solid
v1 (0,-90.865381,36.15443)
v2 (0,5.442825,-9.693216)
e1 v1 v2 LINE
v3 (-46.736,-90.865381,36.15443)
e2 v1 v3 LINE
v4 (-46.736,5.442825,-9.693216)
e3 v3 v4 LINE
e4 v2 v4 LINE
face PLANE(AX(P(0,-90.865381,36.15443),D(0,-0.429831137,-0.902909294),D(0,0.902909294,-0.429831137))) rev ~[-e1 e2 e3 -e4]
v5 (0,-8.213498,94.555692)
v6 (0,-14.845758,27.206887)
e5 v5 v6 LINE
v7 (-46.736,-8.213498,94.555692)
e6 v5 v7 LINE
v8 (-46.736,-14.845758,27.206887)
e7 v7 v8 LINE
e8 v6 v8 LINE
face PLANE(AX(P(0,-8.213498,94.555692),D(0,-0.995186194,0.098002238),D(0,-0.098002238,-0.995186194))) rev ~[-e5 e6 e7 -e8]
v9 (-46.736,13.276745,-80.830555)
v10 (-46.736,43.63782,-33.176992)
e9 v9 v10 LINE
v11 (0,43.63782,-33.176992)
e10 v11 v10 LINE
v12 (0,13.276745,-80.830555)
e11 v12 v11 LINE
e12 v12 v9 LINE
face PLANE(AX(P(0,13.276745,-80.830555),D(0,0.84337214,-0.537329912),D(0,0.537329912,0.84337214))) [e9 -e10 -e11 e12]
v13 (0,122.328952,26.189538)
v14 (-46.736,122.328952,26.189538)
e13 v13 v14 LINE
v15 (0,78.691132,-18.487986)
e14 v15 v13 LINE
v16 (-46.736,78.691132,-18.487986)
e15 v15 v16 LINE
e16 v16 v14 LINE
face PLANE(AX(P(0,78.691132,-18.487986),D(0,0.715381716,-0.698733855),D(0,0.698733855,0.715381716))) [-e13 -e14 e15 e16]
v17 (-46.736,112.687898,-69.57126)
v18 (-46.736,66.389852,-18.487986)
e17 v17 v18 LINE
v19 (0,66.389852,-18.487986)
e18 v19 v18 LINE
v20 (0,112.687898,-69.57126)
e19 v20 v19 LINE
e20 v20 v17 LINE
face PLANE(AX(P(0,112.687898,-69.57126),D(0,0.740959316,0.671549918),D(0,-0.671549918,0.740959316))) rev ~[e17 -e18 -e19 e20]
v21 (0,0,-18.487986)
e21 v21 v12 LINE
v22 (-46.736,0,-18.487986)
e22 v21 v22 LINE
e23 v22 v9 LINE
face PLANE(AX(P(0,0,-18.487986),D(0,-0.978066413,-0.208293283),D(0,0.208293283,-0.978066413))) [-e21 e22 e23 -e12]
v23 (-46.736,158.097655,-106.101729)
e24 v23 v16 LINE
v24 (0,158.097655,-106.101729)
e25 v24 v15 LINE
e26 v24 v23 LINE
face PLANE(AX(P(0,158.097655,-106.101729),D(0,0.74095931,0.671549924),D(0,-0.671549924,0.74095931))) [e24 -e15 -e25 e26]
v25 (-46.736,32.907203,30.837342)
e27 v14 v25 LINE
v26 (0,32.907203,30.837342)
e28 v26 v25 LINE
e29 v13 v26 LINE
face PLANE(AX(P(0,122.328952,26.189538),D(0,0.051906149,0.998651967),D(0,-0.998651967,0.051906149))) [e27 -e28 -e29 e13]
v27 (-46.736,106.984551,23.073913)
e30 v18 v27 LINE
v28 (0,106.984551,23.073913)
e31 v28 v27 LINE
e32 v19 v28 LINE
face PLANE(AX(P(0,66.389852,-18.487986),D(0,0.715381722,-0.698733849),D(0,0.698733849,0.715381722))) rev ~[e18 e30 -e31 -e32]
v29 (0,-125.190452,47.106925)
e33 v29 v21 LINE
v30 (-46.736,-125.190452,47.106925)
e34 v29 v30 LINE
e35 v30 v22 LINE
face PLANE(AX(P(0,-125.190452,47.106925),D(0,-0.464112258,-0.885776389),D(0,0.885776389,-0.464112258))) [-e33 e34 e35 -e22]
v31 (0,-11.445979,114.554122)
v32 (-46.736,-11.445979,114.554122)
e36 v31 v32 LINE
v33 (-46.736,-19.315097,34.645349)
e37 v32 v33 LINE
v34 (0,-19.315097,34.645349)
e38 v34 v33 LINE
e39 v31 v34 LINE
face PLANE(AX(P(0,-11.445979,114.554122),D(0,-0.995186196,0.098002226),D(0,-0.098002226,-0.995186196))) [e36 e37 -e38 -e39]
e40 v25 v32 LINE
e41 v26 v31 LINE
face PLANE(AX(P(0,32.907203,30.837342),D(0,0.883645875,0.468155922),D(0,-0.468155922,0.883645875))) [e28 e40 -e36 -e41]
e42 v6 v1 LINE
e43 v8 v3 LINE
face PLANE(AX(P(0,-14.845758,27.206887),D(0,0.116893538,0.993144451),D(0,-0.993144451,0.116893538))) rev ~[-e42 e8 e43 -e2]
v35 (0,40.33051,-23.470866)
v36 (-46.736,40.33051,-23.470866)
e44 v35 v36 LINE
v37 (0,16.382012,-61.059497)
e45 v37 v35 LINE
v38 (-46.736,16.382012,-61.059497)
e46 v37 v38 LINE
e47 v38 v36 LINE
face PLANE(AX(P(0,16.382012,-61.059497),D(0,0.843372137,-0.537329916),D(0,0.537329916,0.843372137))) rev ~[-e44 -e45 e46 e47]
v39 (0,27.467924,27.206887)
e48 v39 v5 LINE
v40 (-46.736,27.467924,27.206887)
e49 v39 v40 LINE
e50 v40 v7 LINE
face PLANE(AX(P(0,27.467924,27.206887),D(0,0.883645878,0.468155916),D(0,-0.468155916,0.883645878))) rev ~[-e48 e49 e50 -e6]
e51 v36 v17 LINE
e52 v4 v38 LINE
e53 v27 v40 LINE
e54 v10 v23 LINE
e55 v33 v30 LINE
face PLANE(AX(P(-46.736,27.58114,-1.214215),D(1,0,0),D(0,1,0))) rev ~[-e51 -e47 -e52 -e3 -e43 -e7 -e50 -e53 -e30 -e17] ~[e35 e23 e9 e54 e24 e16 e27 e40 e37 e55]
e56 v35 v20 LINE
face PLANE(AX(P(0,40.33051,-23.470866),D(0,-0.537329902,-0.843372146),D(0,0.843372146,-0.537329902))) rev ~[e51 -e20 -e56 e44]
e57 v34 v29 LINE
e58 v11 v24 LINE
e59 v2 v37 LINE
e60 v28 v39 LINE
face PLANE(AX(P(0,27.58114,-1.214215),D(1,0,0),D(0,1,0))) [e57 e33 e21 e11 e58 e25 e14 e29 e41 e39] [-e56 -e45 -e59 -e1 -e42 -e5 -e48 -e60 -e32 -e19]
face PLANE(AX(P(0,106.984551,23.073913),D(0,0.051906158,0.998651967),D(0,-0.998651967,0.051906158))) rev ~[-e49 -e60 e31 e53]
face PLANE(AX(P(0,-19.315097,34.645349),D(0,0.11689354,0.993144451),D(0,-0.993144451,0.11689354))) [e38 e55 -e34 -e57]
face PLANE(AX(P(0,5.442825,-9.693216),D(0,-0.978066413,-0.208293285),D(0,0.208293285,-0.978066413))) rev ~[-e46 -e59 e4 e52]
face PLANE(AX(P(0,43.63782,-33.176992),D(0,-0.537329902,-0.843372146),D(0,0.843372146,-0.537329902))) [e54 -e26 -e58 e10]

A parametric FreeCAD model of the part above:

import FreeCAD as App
import Part
import Sketcher
from FreeCAD import Vector
Q = App.Units.Quantity

doc = App.newDocument("Part")
body = doc.addObject("PartDesign::Body", "Body")

sketch1 = body.newObject("Sketcher::SketchObject", "Sketch")
sketch1.AttachmentSupport = (doc.getObject("YZ_Plane"), [""])
sketch1.MapMode = "FlatFace"
sketch1.addGeometry(Part.LineSegment(Vector(-11, 115, 0), Vector(-19, 35, 0)), False)
sketch1.addGeometry(Part.LineSegment(Vector(-19, 35, 0), Vector(-125, 47, 0)), False)
sketch1.addGeometry(Part.LineSegment(Vector(-125, 47, 0), Vector(0, -18, 0)), False)
sketch1.addGeometry(Part.LineSegment(Vector(0, -18, 0), Vector(13, -81, 0)), False)
sketch1.addGeometry(Part.LineSegment(Vector(13, -81, 0), Vector(44, -33, 0)), False)
sketch1.addGeometry(Part.LineSegment(Vector(44, -33, 0), Vector(158, -106, 0)), False)
sketch1.addGeometry(Part.LineSegment(Vector(158, -106, 0), Vector(79, -18, 0)), False)
sketch1.addGeometry(Part.LineSegment(Vector(79, -18, 0), Vector(122, 26, 0)), False)
sketch1.addGeometry(Part.LineSegment(Vector(122, 26, 0), Vector(33, 31, 0)), False)
sketch1.addGeometry(Part.LineSegment(Vector(33, 31, 0), Vector(-11, 115, 0)), False)
sketch1.addConstraint(Sketcher.Constraint("Coincident", 0, 2, 1, 1))
sketch1.addConstraint(Sketcher.Constraint("Coincident", 1, 2, 2, 1))
sketch1.addConstraint(Sketcher.Constraint("Coincident", 2, 2, 3, 1))
sketch1.addConstraint(Sketcher.Constraint("Coincident", 3, 2, 4, 1))
sketch1.addConstraint(Sketcher.Constraint("Coincident", 4, 2, 5, 1))
sketch1.addConstraint(Sketcher.Constraint("Coincident", 5, 2, 6, 1))
sketch1.addConstraint(Sketcher.Constraint("Coincident", 6, 2, 7, 1))
sketch1.addConstraint(Sketcher.Constraint("Coincident", 7, 2, 8, 1))
sketch1.addConstraint(Sketcher.Constraint("Coincident", 8, 2, 9, 1))
sketch1.addConstraint(Sketcher.Constraint("Coincident", 9, 2, 0, 1))
sketch1.addConstraint(Sketcher.Constraint("PointOnObject", 2, 2, -2))
sketch1.addConstraint(Sketcher.Constraint("Perpendicular", 4, 5))
sketch1.addConstraint(Sketcher.Constraint("Horizontal", 2, 2, 6, 2))
sketch1.addConstraint(Sketcher.Constraint("Distance", 0, Q("80.295299 mm")))
sketch1.addConstraint(Sketcher.Constraint("Distance", 1, Q("106.606199 mm")))
sketch1.addConstraint(Sketcher.Constraint("Distance", 4, Q("56.503601 mm")))
sketch1.addConstraint(Sketcher.Constraint("DistanceX", 0, 2, 8, 2, Q("52.2223 mm")))
sketch1.addConstraint(Sketcher.Constraint("DistanceX", 9, 2, 4, 2, Q("55.083799 mm")))
sketch1.addConstraint(Sketcher.Constraint("Distance", 2, Q("141.334149 mm")))
sketch1.addConstraint(Sketcher.Constraint("Distance", 3, Q("63.74063 mm")))
sketch1.addConstraint(Sketcher.Constraint("Distance", 5, Q("135.716878 mm")))
sketch1.addConstraint(Sketcher.Constraint("DistanceY", -1, 1, 0, 2, Q("34.645349 mm")))
sketch1.addConstraint(Sketcher.Constraint("DistanceX", 1, 2, -1, 1, Q("125.190452 mm")))
sketch1.addConstraint(Sketcher.Constraint("DistanceX", -1, 1, 4, 2, Q("43.63782 mm")))
sketch1.addConstraint(Sketcher.Constraint("DistanceY", 4, 2, -1, 1, Q("33.176992 mm")))
sketch1.addConstraint(Sketcher.Constraint("DistanceY", 5, 2, -1, 1, Q("106.101729 mm")))
sketch1.addConstraint(Sketcher.Constraint("DistanceX", -1, 1, 6, 2, Q("78.691132 mm")))
sketch1.addConstraint(Sketcher.Constraint("DistanceX", -1, 1, 7, 2, Q("122.328952 mm")))
sketch1.addConstraint(Sketcher.Constraint("DistanceY", -1, 1, 8, 2, Q("30.837342 mm")))
sketch1.addConstraint(Sketcher.Constraint("DistanceY", 4, 2, 7, 2, Q("59.36653 mm")))
pad1 = body.newObject("PartDesign::Pad", "Pad")
pad1.Profile = sketch1
pad1.Length = Q("1.84 in")
pad1.Reversed = True

sketch2 = body.newObject("Sketcher::SketchObject", "Sketch001")
sketch2.AttachmentSupport = (doc.getObject("YZ_Plane"), [""])
sketch2.MapMode = "FlatFace"
sketch2.addGeometry(Part.LineSegment(Vector(-15, 27, 0), Vector(-91, 36, 0)), False)
sketch2.addGeometry(Part.LineSegment(Vector(-91, 36, 0), Vector(5, -10, 0)), False)
sketch2.addGeometry(Part.LineSegment(Vector(5, -10, 0), Vector(16, -61, 0)), False)
sketch2.addGeometry(Part.LineSegment(Vector(16, -61, 0), Vector(40, -23, 0)), False)
sketch2.addGeometry(Part.LineSegment(Vector(40, -23, 0), Vector(113, -70, 0)), False)
sketch2.addGeometry(Part.LineSegment(Vector(113, -70, 0), Vector(66, -18, 0)), False)
sketch2.addGeometry(Part.LineSegment(Vector(66, -18, 0), Vector(107, 23, 0)), False)
sketch2.addGeometry(Part.LineSegment(Vector(107, 23, 0), Vector(27, 27, 0)), False)
sketch2.addGeometry(Part.LineSegment(Vector(27, 27, 0), Vector(-8, 95, 0)), False)
sketch2.addGeometry(Part.LineSegment(Vector(-8, 95, 0), Vector(-15, 27, 0)), False)
sketch2.addConstraint(Sketcher.Constraint("Coincident", 0, 2, 1, 1))
sketch2.addConstraint(Sketcher.Constraint("Coincident", 1, 2, 2, 1))
sketch2.addConstraint(Sketcher.Constraint("Coincident", 2, 2, 3, 1))
sketch2.addConstraint(Sketcher.Constraint("Coincident", 3, 2, 4, 1))
sketch2.addConstraint(Sketcher.Constraint("Coincident", 4, 2, 5, 1))
sketch2.addConstraint(Sketcher.Constraint("Coincident", 5, 2, 6, 1))
sketch2.addConstraint(Sketcher.Constraint("Coincident", 6, 2, 7, 1))
sketch2.addConstraint(Sketcher.Constraint("Coincident", 7, 2, 8, 1))
sketch2.addConstraint(Sketcher.Constraint("Coincident", 8, 2, 9, 1))
sketch2.addConstraint(Sketcher.Constraint("Coincident", 9, 2, 0, 1))
sketch2.addConstraint(Sketcher.Constraint("Perpendicular", 3, 4))
sketch2.addConstraint(Sketcher.Constraint("Horizontal", 7, 2, 9, 2))
sketch2.addConstraint(Sketcher.Constraint("DistanceX", -1, 1, 4, 2, Q("112.687898 mm")))
sketch2.addConstraint(Sketcher.Constraint("DistanceX", 5, 2, 6, 2, Q("40.594699 mm")))
sketch2.addConstraint(Sketcher.Constraint("DistanceY", 5, 2, 6, 2, Q("41.561899 mm")))
sketch2.addConstraint(Sketcher.Constraint("DistanceX", 1, 2, 7, 2, Q("22.025099 mm")))
sketch2.addConstraint(Sketcher.Constraint("Distance", 1, Q("106.66432 mm")))
sketch2.addConstraint(Sketcher.Constraint("Distance", 3, Q("44.569448 mm")))
sketch2.addConstraint(Sketcher.Constraint("DistanceX", 0, 2, -1, 1, Q("90.865381 mm")))
sketch2.addConstraint(Sketcher.Constraint("DistanceY", -1, 1, 0, 2, Q("36.15443 mm")))
sketch2.addConstraint(Sketcher.Constraint("DistanceX", -1, 1, 2, 2, Q("16.382012 mm")))
sketch2.addConstraint(Sketcher.Constraint("DistanceX", -1, 1, 3, 2, Q("40.33051 mm")))
sketch2.addConstraint(Sketcher.Constraint("DistanceY", 4, 2, -1, 1, Q("69.57126 mm")))
sketch2.addConstraint(Sketcher.Constraint("DistanceX", -1, 1, 6, 2, Q("106.984551 mm")))
sketch2.addConstraint(Sketcher.Constraint("DistanceY", -1, 1, 8, 2, Q("94.555692 mm")))
sketch2.addConstraint(Sketcher.Constraint("DistanceY", 2, 2, 1, 2, Q("51.366281 mm")))
sketch2.addConstraint(Sketcher.Constraint("DistanceY", 3, 2, 5, 2, Q("4.98288 mm")))
sketch2.addConstraint(Sketcher.Constraint("DistanceX", 8, 2, 7, 2, Q("35.681422 mm")))
sketch2.addConstraint(Sketcher.Constraint("DistanceX", 9, 2, 8, 2, Q("6.63226 mm")))
sketch2.addConstraint(Sketcher.Constraint("Distance", 0, Q("76.544377 mm")))
pocket1 = body.newObject("PartDesign::Pocket", "Pocket")
pocket1.Profile = sketch2
pocket1.Length = Q("4.06 in")

doc.recompute()
